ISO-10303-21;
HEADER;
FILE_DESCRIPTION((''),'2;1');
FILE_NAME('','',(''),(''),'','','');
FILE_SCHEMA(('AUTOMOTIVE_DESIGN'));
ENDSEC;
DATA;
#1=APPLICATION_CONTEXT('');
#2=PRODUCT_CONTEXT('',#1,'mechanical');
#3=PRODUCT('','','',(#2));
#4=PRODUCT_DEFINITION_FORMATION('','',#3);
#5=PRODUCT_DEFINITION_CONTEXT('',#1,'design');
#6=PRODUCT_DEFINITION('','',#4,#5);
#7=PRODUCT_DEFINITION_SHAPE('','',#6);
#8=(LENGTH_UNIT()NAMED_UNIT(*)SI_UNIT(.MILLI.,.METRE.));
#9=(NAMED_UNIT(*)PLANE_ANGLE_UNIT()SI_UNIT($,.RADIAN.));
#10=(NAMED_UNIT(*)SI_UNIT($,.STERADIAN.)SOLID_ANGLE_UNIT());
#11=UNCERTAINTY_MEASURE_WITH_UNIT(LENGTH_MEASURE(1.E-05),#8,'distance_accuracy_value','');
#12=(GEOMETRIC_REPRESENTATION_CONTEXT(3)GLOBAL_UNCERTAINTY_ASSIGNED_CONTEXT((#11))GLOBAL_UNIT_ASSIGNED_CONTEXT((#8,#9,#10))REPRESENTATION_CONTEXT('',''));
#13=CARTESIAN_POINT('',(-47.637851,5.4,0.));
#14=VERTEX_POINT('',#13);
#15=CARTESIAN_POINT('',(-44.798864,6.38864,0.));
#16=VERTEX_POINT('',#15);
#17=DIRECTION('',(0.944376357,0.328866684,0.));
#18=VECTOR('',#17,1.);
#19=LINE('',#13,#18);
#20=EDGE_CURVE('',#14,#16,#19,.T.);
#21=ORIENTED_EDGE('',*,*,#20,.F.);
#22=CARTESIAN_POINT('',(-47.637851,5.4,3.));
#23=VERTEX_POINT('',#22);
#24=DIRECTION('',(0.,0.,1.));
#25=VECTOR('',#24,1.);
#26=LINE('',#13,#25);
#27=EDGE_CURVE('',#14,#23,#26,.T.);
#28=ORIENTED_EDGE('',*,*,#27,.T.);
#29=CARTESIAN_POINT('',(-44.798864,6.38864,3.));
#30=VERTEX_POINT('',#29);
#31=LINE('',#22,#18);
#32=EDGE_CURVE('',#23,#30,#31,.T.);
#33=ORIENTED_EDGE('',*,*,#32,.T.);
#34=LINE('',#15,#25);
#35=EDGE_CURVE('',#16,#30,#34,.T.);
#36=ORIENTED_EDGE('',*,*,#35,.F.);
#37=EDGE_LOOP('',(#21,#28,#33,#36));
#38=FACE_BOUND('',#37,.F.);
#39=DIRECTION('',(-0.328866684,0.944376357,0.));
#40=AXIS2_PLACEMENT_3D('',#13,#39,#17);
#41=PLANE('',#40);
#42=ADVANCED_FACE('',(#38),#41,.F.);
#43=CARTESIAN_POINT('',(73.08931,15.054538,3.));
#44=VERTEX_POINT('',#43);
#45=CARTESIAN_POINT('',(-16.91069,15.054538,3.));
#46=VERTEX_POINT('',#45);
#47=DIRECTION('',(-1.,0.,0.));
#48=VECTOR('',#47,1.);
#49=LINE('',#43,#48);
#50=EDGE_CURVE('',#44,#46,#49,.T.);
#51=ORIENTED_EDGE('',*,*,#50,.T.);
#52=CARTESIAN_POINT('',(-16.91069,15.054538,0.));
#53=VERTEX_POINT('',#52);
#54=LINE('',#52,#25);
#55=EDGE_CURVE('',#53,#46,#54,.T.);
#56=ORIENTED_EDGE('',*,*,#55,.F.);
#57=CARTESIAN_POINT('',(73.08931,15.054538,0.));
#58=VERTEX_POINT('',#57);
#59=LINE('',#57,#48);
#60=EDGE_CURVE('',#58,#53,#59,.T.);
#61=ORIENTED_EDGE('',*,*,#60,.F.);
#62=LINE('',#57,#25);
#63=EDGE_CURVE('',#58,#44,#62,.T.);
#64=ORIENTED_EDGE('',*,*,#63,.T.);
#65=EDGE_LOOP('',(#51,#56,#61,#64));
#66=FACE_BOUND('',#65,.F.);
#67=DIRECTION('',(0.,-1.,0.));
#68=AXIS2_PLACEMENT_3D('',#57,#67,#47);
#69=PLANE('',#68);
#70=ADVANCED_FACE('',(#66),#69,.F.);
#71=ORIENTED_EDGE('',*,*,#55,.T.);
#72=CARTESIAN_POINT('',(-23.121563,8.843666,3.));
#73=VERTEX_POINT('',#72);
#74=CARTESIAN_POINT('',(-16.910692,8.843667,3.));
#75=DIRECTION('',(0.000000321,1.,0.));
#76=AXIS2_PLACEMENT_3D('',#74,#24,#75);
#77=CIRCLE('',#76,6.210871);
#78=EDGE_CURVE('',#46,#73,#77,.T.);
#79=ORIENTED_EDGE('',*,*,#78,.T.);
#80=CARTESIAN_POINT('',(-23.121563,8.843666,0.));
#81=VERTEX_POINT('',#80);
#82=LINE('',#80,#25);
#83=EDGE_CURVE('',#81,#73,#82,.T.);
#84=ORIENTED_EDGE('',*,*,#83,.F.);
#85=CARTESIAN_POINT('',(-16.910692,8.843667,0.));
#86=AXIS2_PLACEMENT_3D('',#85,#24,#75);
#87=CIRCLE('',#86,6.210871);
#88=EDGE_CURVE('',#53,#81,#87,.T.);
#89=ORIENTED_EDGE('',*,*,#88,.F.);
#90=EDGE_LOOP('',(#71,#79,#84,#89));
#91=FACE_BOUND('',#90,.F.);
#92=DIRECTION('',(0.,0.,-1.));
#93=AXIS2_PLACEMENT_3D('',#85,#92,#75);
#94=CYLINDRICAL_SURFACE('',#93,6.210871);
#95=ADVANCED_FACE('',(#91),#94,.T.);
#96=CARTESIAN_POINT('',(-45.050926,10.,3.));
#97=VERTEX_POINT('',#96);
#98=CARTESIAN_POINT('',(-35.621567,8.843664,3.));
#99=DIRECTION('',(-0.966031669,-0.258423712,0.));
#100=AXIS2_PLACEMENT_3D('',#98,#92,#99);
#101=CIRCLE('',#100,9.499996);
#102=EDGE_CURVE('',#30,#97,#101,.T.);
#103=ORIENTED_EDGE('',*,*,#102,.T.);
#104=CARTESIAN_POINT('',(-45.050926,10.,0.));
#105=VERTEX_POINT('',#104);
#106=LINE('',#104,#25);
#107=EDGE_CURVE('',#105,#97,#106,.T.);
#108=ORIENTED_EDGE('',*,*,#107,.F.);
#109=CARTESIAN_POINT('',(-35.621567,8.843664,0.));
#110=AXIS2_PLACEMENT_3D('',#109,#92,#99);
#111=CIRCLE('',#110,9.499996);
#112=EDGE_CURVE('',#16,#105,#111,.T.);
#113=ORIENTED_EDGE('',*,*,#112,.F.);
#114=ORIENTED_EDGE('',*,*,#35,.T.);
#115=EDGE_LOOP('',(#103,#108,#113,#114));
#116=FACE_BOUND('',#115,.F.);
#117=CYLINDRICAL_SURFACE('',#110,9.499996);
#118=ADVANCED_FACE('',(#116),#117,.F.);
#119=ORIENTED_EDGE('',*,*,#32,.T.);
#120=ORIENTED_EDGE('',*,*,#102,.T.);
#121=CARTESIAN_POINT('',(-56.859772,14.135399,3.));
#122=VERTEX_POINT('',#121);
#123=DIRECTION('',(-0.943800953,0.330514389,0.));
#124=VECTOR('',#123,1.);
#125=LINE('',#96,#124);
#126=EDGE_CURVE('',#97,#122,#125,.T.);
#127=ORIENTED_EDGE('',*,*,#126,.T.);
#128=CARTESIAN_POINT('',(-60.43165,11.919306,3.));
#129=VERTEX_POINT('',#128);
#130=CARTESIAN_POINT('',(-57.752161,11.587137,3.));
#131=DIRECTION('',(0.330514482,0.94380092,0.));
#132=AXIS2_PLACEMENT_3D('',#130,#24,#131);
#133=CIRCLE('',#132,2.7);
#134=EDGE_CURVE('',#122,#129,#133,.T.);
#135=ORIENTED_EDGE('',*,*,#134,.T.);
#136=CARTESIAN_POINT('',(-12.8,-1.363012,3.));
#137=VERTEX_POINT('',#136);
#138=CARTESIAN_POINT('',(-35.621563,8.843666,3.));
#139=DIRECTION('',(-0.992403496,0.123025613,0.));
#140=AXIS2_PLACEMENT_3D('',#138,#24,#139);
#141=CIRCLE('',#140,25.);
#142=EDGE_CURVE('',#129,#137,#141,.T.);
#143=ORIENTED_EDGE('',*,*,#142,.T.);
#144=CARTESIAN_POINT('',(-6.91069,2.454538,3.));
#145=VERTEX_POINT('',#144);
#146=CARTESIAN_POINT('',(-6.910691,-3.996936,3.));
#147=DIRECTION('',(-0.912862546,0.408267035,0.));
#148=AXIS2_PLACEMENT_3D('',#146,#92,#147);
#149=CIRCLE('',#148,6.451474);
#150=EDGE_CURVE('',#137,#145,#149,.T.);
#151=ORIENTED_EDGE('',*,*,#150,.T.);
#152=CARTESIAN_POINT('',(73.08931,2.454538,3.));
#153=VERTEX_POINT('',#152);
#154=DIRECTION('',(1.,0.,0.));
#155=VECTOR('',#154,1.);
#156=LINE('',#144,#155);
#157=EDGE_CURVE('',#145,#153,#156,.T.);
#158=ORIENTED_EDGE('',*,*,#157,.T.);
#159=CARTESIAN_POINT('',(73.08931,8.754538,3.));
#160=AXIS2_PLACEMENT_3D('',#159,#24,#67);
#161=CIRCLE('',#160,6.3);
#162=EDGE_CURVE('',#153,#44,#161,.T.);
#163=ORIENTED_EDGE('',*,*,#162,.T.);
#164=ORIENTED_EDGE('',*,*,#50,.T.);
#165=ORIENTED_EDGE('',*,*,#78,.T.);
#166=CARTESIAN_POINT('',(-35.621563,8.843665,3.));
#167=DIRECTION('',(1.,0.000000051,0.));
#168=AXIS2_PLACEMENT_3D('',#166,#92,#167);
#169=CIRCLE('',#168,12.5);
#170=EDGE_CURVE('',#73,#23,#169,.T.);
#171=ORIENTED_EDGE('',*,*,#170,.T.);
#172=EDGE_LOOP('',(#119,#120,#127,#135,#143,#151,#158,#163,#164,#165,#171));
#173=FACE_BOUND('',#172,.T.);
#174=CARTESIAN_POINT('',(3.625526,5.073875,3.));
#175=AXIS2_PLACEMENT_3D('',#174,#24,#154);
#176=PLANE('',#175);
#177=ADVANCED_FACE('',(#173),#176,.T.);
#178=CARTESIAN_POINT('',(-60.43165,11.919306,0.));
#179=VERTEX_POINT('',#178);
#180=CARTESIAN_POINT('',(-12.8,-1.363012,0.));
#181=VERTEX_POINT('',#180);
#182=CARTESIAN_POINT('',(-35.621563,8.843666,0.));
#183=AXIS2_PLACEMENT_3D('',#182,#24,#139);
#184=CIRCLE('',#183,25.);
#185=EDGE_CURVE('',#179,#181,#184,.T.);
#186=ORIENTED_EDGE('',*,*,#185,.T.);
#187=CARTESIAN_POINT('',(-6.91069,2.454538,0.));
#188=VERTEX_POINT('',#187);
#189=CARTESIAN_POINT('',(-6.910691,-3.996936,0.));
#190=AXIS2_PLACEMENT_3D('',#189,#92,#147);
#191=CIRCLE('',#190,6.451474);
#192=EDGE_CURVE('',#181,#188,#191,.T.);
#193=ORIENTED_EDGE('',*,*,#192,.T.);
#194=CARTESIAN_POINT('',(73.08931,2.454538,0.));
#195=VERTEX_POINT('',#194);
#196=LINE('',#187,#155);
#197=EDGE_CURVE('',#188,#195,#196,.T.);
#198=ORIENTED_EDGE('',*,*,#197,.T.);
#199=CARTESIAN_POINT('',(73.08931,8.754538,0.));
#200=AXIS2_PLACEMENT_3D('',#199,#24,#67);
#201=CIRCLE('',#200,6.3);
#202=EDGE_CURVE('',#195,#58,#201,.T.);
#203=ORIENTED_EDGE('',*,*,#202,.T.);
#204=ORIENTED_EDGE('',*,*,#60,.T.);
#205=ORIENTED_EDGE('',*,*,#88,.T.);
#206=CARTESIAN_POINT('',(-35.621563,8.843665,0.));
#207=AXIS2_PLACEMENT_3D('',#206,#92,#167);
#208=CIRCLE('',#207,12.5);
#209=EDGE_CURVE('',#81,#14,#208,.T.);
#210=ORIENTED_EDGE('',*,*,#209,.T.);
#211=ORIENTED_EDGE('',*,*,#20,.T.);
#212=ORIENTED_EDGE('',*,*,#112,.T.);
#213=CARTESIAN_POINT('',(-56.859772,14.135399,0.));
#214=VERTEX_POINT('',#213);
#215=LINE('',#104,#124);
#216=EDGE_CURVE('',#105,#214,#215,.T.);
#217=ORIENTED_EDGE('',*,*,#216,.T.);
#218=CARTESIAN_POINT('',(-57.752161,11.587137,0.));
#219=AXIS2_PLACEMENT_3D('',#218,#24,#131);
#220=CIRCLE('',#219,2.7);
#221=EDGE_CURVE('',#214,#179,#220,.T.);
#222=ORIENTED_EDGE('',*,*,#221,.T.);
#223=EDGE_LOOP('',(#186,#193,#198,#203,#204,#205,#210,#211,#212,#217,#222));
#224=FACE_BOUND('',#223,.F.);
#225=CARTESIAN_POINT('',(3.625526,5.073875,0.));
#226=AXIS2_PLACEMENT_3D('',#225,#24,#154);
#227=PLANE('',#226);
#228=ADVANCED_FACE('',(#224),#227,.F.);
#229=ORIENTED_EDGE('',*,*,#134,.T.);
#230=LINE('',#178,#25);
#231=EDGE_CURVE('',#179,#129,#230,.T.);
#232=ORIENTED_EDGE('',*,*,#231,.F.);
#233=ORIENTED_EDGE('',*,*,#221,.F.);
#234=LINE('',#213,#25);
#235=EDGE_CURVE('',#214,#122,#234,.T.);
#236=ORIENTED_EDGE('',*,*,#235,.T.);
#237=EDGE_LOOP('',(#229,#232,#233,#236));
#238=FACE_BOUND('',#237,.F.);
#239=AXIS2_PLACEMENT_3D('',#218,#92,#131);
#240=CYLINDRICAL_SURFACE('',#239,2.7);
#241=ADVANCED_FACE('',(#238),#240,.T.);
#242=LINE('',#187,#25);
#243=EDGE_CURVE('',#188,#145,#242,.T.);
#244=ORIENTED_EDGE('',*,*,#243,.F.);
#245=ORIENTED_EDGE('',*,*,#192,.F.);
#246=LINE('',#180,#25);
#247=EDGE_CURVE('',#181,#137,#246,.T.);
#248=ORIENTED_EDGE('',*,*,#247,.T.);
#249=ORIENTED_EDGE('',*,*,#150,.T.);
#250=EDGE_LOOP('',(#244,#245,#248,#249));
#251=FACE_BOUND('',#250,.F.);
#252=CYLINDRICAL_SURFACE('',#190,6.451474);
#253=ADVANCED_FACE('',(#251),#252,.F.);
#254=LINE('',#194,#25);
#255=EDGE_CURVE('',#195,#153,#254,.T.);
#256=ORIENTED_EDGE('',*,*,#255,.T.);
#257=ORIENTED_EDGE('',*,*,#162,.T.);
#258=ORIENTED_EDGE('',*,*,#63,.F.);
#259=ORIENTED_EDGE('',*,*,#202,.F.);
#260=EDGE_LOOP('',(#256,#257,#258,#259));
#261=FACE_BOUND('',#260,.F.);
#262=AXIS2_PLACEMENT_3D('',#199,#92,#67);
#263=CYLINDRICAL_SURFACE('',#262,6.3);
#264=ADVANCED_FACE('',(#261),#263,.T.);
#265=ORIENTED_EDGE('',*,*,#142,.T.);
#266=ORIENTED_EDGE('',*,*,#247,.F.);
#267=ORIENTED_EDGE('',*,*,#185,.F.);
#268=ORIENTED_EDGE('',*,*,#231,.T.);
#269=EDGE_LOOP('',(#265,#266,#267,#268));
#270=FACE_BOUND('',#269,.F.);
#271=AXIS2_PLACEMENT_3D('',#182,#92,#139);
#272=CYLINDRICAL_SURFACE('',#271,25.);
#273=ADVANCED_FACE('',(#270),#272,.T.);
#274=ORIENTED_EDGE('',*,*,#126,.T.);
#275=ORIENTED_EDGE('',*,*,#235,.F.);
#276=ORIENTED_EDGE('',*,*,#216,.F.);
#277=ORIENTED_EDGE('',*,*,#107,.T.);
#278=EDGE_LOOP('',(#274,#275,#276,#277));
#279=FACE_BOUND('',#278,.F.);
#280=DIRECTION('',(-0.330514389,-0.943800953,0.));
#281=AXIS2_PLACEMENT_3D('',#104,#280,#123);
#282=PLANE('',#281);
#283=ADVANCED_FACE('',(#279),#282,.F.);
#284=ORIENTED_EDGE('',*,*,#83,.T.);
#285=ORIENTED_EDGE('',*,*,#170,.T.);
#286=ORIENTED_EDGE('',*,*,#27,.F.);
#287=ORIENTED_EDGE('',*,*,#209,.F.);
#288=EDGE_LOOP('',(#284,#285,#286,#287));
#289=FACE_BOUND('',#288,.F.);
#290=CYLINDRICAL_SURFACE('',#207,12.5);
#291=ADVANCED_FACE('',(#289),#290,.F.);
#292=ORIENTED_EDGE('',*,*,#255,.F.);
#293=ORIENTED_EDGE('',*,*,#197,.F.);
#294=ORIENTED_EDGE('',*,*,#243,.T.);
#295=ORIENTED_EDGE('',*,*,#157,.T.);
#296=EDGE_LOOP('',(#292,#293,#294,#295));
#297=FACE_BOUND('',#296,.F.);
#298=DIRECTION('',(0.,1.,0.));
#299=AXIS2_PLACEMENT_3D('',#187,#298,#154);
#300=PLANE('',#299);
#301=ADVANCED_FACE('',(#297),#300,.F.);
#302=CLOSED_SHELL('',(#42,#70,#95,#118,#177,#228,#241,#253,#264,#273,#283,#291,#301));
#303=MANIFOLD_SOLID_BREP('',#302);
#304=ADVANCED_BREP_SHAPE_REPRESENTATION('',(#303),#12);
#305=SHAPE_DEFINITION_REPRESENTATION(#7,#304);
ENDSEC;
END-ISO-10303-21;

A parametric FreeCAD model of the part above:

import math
import FreeCAD as App
import Part
import Sketcher

V = App.Vector
Q = App.Units.Quantity

doc = App.newDocument("Part")
body = doc.addObject("PartDesign::Body", "Body")

# Sketch on XY plane
sketch1 = body.newObject("Sketcher::SketchObject", "Sketch")
sketch1.AttachmentSupport = (doc.getObject("XY_Plane"), [""])
sketch1.MapMode = "FlatFace"
sketch1.addGeometry([
    Part.ArcOfCircle(Part.Circle(V(-6.9, -4, 0), V(0, 0, 1), 6.5), math.radians(90), math.radians(156)),  # 0
    Part.LineSegment(V(-6.9, 2.5, 0), V(73.1, 2.5, 0)),  # 1
    Part.ArcOfCircle(Part.Circle(V(73.1, 8.8, 0), V(0, 0, 1), 6.3), math.radians(-90), math.radians(90)),  # 2
    Part.LineSegment(V(73.1, 15.1, 0), V(-16.9, 15.1, 0)),  # 3
    Part.ArcOfCircle(Part.Circle(V(-16.9, 8.8, 0), V(0, 0, 1), 6.2), math.radians(90), math.radians(180)),  # 4
    Part.ArcOfCircle(Part.Circle(V(-35.6, 8.8, 0), V(0, 0, 1), 12.5), math.radians(-164), math.radians(0)),  # 5
    Part.LineSegment(V(-47.6, 5.4, 0), V(-44.8, 6.4, 0)),  # 6
    Part.ArcOfCircle(Part.Circle(V(-35.6, 8.8, 0), V(0, 0, 1), 9.5), math.radians(173), math.radians(195)),  # 7
    Part.LineSegment(V(-45.1, 10, 0), V(-56.9, 14.1, 0)),  # 8
    Part.ArcOfCircle(Part.Circle(V(-57.8, 11.6, 0), V(0, 0, 1), 2.7), math.radians(71), math.radians(173)),  # 9
    Part.ArcOfCircle(Part.Circle(V(-35.6, 8.8, 0), V(0, 0, 1), 25), math.radians(173), math.radians(336)),  # 10
], False)
sketch1.addConstraint([
    Sketcher.Constraint("Tangent", 0, 1, 1, 1),
    Sketcher.Constraint("Tangent", 1, 2, 2, 1),
    Sketcher.Constraint("Tangent", 2, 2, 3, 1),
    Sketcher.Constraint("Tangent", 3, 2, 4, 1),
    Sketcher.Constraint("Tangent", 4, 2, 5, 2),
    Sketcher.Constraint("Coincident", 5, 1, 6, 1),
    Sketcher.Constraint("Coincident", 6, 2, 7, 2),
    Sketcher.Constraint("Coincident", 7, 1, 8, 1),
    Sketcher.Constraint("Tangent", 8, 2, 9, 1),
    Sketcher.Constraint("Tangent", 9, 2, 10, 1),
    Sketcher.Constraint("Tangent", 10, 2, 0, 2),
    Sketcher.Constraint("Horizontal", 1),
    Sketcher.Constraint("Horizontal", 3),
    Sketcher.Constraint("Coincident", 7, 3, 5, 3),
    Sketcher.Constraint("Coincident", 10, 3, 5, 3),
    Sketcher.Constraint("Horizontal", 4, 3, 5, 3),
    Sketcher.Constraint("Radius", 10, Q("25 mm")),
    Sketcher.Constraint("Radius", 2, Q("6.3 mm")),
    Sketcher.Constraint("Radius", 5, Q("12.5 mm")),
    Sketcher.Constraint("Radius", 9, Q("2.7 mm")),
    Sketcher.Constraint("DistanceX", 1, 1, 1, 2, Q("80 mm")),
    Sketcher.Constraint("DistanceX", 3, 2, 3, 1, Q("90 mm")),
    Sketcher.Constraint("DistanceY", -1, 1, 7, 1, Q("10 mm")),
    Sketcher.Constraint("Angle", 6, Q("19.200002 deg")),
    Sketcher.Constraint("Angle", 8, Q("160.7 deg")),
    Sketcher.Constraint("DistanceY", -1, 1, 5, 1, Q("5.4 mm")),
    Sketcher.Constraint("DistanceX", 10, 2, -1, 1, Q("12.8 mm")),
    Sketcher.Constraint("Radius", 4, Q("6.210871 mm")),
    Sketcher.Constraint("Radius", 7, Q("9.499996 mm")),
    Sketcher.Constraint("DistanceY", 2, 3, 9, 3, Q("2.832599 mm")),
])
pad1 = body.newObject("PartDesign::Pad", "Pad")
pad1.Profile = sketch1
pad1.Length = 3

doc.recompute()
